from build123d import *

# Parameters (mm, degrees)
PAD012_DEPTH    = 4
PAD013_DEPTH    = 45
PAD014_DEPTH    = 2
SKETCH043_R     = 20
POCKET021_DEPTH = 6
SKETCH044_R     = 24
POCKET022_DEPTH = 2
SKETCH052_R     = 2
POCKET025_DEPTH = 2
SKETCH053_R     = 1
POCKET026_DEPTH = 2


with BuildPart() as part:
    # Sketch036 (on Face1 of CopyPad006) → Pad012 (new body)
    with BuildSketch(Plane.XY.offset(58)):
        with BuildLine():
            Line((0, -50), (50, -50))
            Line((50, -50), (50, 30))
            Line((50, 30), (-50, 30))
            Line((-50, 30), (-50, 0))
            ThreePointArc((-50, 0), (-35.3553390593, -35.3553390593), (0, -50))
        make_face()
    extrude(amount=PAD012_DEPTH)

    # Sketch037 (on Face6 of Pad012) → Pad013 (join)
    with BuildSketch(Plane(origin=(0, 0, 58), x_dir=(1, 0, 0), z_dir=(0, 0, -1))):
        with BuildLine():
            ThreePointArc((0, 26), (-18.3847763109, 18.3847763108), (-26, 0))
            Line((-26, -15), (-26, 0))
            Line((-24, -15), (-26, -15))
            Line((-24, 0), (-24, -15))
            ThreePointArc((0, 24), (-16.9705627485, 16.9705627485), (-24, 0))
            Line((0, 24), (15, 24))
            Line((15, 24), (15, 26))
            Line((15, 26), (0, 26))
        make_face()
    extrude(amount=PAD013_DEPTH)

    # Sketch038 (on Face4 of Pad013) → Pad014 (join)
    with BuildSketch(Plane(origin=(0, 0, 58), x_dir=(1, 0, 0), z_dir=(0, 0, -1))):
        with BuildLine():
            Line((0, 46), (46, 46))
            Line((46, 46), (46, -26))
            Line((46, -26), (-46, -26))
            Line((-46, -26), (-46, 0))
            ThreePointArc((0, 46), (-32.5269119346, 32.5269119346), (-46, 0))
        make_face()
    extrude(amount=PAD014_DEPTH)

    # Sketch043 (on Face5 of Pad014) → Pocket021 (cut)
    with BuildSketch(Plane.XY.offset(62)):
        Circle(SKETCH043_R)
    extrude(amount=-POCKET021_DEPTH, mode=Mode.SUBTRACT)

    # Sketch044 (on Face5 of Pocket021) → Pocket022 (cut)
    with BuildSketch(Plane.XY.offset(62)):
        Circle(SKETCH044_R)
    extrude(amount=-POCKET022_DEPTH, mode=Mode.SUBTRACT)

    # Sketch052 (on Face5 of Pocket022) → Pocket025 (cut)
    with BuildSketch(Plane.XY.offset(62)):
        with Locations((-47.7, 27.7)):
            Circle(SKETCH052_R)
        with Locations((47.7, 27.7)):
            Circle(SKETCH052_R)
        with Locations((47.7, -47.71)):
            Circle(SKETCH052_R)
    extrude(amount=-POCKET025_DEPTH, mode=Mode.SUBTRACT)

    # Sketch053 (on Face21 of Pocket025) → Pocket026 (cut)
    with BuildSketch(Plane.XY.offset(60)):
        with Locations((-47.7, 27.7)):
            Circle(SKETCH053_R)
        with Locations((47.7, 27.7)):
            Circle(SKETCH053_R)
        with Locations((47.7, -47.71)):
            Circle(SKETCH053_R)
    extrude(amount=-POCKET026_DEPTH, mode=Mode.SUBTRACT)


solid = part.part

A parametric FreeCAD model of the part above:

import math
import FreeCAD as App
import Part
import Sketcher

doc = App.newDocument("Part")
params = doc.addObject("Spreadsheet::Sheet", "Params")
for row, (alias, value) in enumerate([
    ("sketch1_radius", "50 mm"),
    ("sketch1_width", "50 mm"),
    ("sketch1_height", "80 mm"),
    ("pad1_length", "4 mm"),
    ("sketch2_radius", "26 mm"),
    ("sketch2_radius2", "24 mm"),
    ("sketch2_width", "15 mm"),
    ("pad2_length", "45 mm"),
    ("sketch3_radius", "46 mm"),
    ("sketch3_width", "46 mm"),
    ("sketch3_height", "26 mm"),
    ("pad3_length", "2 mm"),
    ("sketch4_diameter", "40 mm"),
    ("pocket1_length", "6 mm"),
    ("sketch5_diameter", "48 mm"),
    ("pocket2_length", "2 mm"),
    ("sketch6_diameter", "4 mm"),
    ("pocket3_length", "2 mm"),
    ("sketch7_diameter", "2 mm"),
    ("pocket4_length", "2 mm"),
], start=1):
    params.set(f"A{row}", alias)
    params.set(f"B{row}", "=" + value)
    params.setAlias(f"B{row}", alias)

body = doc.addObject("PartDesign::Body", "Body")

# Sketch on XY plane
sketch1 = doc.addObject("Sketcher::SketchObject", "Sketch")
body.addObject(sketch1)
sketch1.AttachmentSupport = (doc.XY_Plane, [""])
sketch1.MapMode = "FlatFace"
sketch1.AttachmentOffset = App.Placement(App.Vector(0, 0, 58), App.Rotation())
sketch1.addGeometry([
    Part.LineSegment(App.Vector(0, -50, 0), App.Vector(50, -50, 0)),  # 0
    Part.LineSegment(App.Vector(50, -50, 0), App.Vector(50, 30, 0)),  # 1
    Part.LineSegment(App.Vector(50, 30, 0), App.Vector(-50, 30, 0)),  # 2
    Part.LineSegment(App.Vector(-50, 30, 0), App.Vector(-50, 0, 0)),  # 3
    Part.ArcOfCircle(Part.Circle(App.Vector(0, 0, 0), App.Vector(0, 0, 1), 50), math.radians(180), math.radians(270)),  # 4
], False)
sketch1.addConstraint([
    Sketcher.Constraint("Coincident", 0, 2, 1, 1),
    Sketcher.Constraint("Coincident", 1, 2, 2, 1),
    Sketcher.Constraint("Coincident", 2, 2, 3, 1),
    Sketcher.Constraint("Tangent", 3, 2, 4, 1),
    Sketcher.Constraint("Tangent", 4, 2, 0, 1),
    Sketcher.Constraint("Horizontal", 0),
    Sketcher.Constraint("Vertical", 1),
    Sketcher.Constraint("Horizontal", 2),
    Sketcher.Constraint("Vertical", 3),
    Sketcher.Constraint("Coincident", 4, 3, -1, 1),
    Sketcher.Constraint("Radius", 4, 50.0),
    Sketcher.Constraint("DistanceX", 0, 1, 0, 2, 50.0),
    Sketcher.Constraint("DistanceY", 1, 1, 1, 2, 80.0),
])
sketch1.setExpression("Constraints[10]", "Params.sketch1_radius")
sketch1.setExpression("Constraints[11]", "Params.sketch1_width")
sketch1.setExpression("Constraints[12]", "Params.sketch1_height")
pad1 = doc.addObject("PartDesign::Pad", "Pad")
body.addObject(pad1)
pad1.Profile = sketch1
pad1.setExpression("Length", "Params.pad1_length")

# Sketch on XY plane
sketch2 = doc.addObject("Sketcher::SketchObject", "Sketch001")
body.addObject(sketch2)
sketch2.AttachmentSupport = (doc.XY_Plane, [""])
sketch2.MapMode = "FlatFace"
sketch2.AttachmentOffset = App.Placement(App.Vector(0, 0, 58), App.Rotation())
sketch2.addGeometry([
    Part.ArcOfCircle(Part.Circle(App.Vector(0, 0, 0), App.Vector(0, 0, 1), 26), math.radians(180), math.radians(270)),  # 0
    Part.LineSegment(App.Vector(-26, 0, 0), App.Vector(-26, 15, 0)),  # 1
    Part.LineSegment(App.Vector(-26, 15, 0), App.Vector(-24, 15, 0)),  # 2
    Part.LineSegment(App.Vector(-24, 15, 0), App.Vector(-24, 0, 0)),  # 3
    Part.ArcOfCircle(Part.Circle(App.Vector(0, 0, 0), App.Vector(0, 0, 1), 24), math.radians(180), math.radians(270)),  # 4
    Part.LineSegment(App.Vector(0, -24, 0), App.Vector(15, -24, 0)),  # 5
    Part.LineSegment(App.Vector(15, -24, 0), App.Vector(15, -26, 0)),  # 6
    Part.LineSegment(App.Vector(15, -26, 0), App.Vector(0, -26, 0)),  # 7
], False)
sketch2.addConstraint([
    Sketcher.Constraint("Tangent", 0, 1, 1, 1),
    Sketcher.Constraint("Coincident", 1, 2, 2, 1),
    Sketcher.Constraint("Coincident", 2, 2, 3, 1),
    Sketcher.Constraint("Tangent", 3, 2, 4, 1),
    Sketcher.Constraint("Tangent", 4, 2, 5, 1),
    Sketcher.Constraint("Coincident", 5, 2, 6, 1),
    Sketcher.Constraint("Coincident", 6, 2, 7, 1),
    Sketcher.Constraint("Tangent", 7, 2, 0, 2),
    Sketcher.Constraint("Vertical", 1),
    Sketcher.Constraint("Horizontal", 2),
    Sketcher.Constraint("Vertical", 3),
    Sketcher.Constraint("Horizontal", 5),
    Sketcher.Constraint("Vertical", 6),
    Sketcher.Constraint("Horizontal", 7),
    Sketcher.Constraint("Coincident", 0, 3, -1, 1),
    Sketcher.Constraint("Coincident", 4, 3, -1, 1),
    Sketcher.Constraint("Equal", 7, 1),
    Sketcher.Constraint("Radius", 0, 26.0),
    Sketcher.Constraint("Radius", 4, 24.0),
    Sketcher.Constraint("DistanceX", 5, 1, 5, 2, 15.0),
])
sketch2.setExpression("Constraints[17]", "Params.sketch2_radius")
sketch2.setExpression("Constraints[18]", "Params.sketch2_radius2")
sketch2.setExpression("Constraints[19]", "Params.sketch2_width")
pad2 = doc.addObject("PartDesign::Pad", "Pad001")
body.addObject(pad2)
pad2.Profile = sketch2
pad2.setExpression("Length", "Params.pad2_length")
pad2.Reversed = True

# Sketch on XY plane
sketch3 = doc.addObject("Sketcher::SketchObject", "Sketch002")
body.addObject(sketch3)
sketch3.AttachmentSupport = (doc.XY_Plane, [""])
sketch3.MapMode = "FlatFace"
sketch3.AttachmentOffset = App.Placement(App.Vector(0, 0, 58), App.Rotation())
sketch3.addGeometry([
    Part.LineSegment(App.Vector(46, -46, 0), App.Vector(0, -46, 0)),  # 0
    Part.ArcOfCircle(Part.Circle(App.Vector(0, 0, 0), App.Vector(0, 0, 1), 46), math.radians(180), math.radians(270)),  # 1
    Part.LineSegment(App.Vector(-46, 0, 0), App.Vector(-46, 26, 0)),  # 2
    Part.LineSegment(App.Vector(-46, 26, 0), App.Vector(46, 26, 0)),  # 3
    Part.LineSegment(App.Vector(46, 26, 0), App.Vector(46, -46, 0)),  # 4
], False)
sketch3.addConstraint([
    Sketcher.Constraint("Tangent", 0, 2, 1, 2),
    Sketcher.Constraint("Tangent", 1, 1, 2, 1),
    Sketcher.Constraint("Coincident", 2, 2, 3, 1),
    Sketcher.Constraint("Coincident", 3, 2, 4, 1),
    Sketcher.Constraint("Coincident", 4, 2, 0, 1),
    Sketcher.Constraint("Horizontal", 0),
    Sketcher.Constraint("Vertical", 2),
    Sketcher.Constraint("Horizontal", 3),
    Sketcher.Constraint("Vertical", 4),
    Sketcher.Constraint("Coincident", 1, 3, -1, 1),
    Sketcher.Constraint("Radius", 1, 46.0),
    Sketcher.Constraint("DistanceX", 0, 2, 0, 1, 46.0),
    Sketcher.Constraint("DistanceY", 2, 1, 2, 2, 26.0),
])
sketch3.setExpression("Constraints[10]", "Params.sketch3_radius")
sketch3.setExpression("Constraints[11]", "Params.sketch3_width")
sketch3.setExpression("Constraints[12]", "Params.sketch3_height")
pad3 = doc.addObject("PartDesign::Pad", "Pad002")
body.addObject(pad3)
pad3.Profile = sketch3
pad3.setExpression("Length", "Params.pad3_length")
pad3.Reversed = True

# Sketch on XY plane
sketch4 = doc.addObject("Sketcher::SketchObject", "Sketch003")
body.addObject(sketch4)
sketch4.AttachmentSupport = (doc.XY_Plane, [""])
sketch4.MapMode = "FlatFace"
sketch4.AttachmentOffset = App.Placement(App.Vector(0, 0, 62), App.Rotation())
sketch4.addGeometry(Part.Circle(App.Vector(0, 0, 0), App.Vector(0, 0, 1), 20), False)
sketch4.addConstraint([
    Sketcher.Constraint("Coincident", 0, 3, -1, 1),
    Sketcher.Constraint("Diameter", 0, 40.0),
])
sketch4.setExpression("Constraints[1]", "Params.sketch4_diameter")
pocket1 = doc.addObject("PartDesign::Pocket", "Pocket")
body.addObject(pocket1)
pocket1.Profile = sketch4
pocket1.setExpression("Length", "Params.pocket1_length")

# Sketch on XY plane
sketch5 = doc.addObject("Sketcher::SketchObject", "Sketch004")
body.addObject(sketch5)
sketch5.AttachmentSupport = (doc.XY_Plane, [""])
sketch5.MapMode = "FlatFace"
sketch5.AttachmentOffset = App.Placement(App.Vector(0, 0, 62), App.Rotation())
sketch5.addGeometry(Part.Circle(App.Vector(0, 0, 0), App.Vector(0, 0, 1), 24), False)
sketch5.addConstraint([
    Sketcher.Constraint("Coincident", 0, 3, -1, 1),
    Sketcher.Constraint("Diameter", 0, 48.0),
])
sketch5.setExpression("Constraints[1]", "Params.sketch5_diameter")
pocket2 = doc.addObject("PartDesign::Pocket", "Pocket001")
body.addObject(pocket2)
pocket2.Profile = sketch5
pocket2.setExpression("Length", "Params.pocket2_length")

# Sketch on XY plane
sketch6 = doc.addObject("Sketcher::SketchObject", "Sketch005")
body.addObject(sketch6)
sketch6.AttachmentSupport = (doc.XY_Plane, [""])
sketch6.MapMode = "FlatFace"
sketch6.AttachmentOffset = App.Placement(App.Vector(0, 0, 62), App.Rotation())
sketch6.addGeometry([
    Part.Circle(App.Vector(-47.7, 27.7, 0), App.Vector(0, 0, 1), 2),
    Part.Circle(App.Vector(47.7, 27.7, 0), App.Vector(0, 0, 1), 2),
    Part.Circle(App.Vector(47.7, -47.7, 0), App.Vector(0, 0, 1), 2),
], False)
sketch6.addConstraint([
    Sketcher.Constraint("Equal", 0, 1),
    Sketcher.Constraint("Equal", 1, 2),
    Sketcher.Constraint("Symmetric", 0, 3, 1, 3, -2),
    Sketcher.Constraint("Vertical", 1, 3, 2, 3),
    Sketcher.Constraint("Diameter", 0, 4.0),
    Sketcher.Constraint("DistanceX", 0, 3, -1, 1, 47.7),
    Sketcher.Constraint("DistanceY", -1, 1, 0, 3, 27.7),
    Sketcher.Constraint("DistanceY", 2, 3, -1, 1, 47.71),
])
sketch6.setExpression("Constraints[4]", "Params.sketch6_diameter")
pocket3 = doc.addObject("PartDesign::Pocket", "Pocket002")
body.addObject(pocket3)
pocket3.Profile = sketch6
pocket3.setExpression("Length", "Params.pocket3_length")

# Sketch on XY plane
sketch7 = doc.addObject("Sketcher::SketchObject", "Sketch006")
body.addObject(sketch7)
sketch7.AttachmentSupport = (doc.XY_Plane, [""])
sketch7.MapMode = "FlatFace"
sketch7.AttachmentOffset = App.Placement(App.Vector(0, 0, 60), App.Rotation())
sketch7.addGeometry([
    Part.Circle(App.Vector(-47.7, 27.7, 0), App.Vector(0, 0, 1), 1),
    Part.Circle(App.Vector(47.7, 27.7, 0), App.Vector(0, 0, 1), 1),
    Part.Circle(App.Vector(47.7, -47.7, 0), App.Vector(0, 0, 1), 1),
], False)
sketch7.addConstraint([
    Sketcher.Constraint("Equal", 0, 1),
    Sketcher.Constraint("Equal", 1, 2),
    Sketcher.Constraint("Symmetric", 0, 3, 1, 3, -2),
    Sketcher.Constraint("Vertical", 1, 3, 2, 3),
    Sketcher.Constraint("Diameter", 0, 2.0),
    Sketcher.Constraint("DistanceX", 0, 3, -1, 1, 47.7),
    Sketcher.Constraint("DistanceY", -1, 1, 0, 3, 27.7),
    Sketcher.Constraint("DistanceY", 2, 3, -1, 1, 47.71),
])
sketch7.setExpression("Constraints[4]", "Params.sketch7_diameter")
pocket4 = doc.addObject("PartDesign::Pocket", "Pocket003")
body.addObject(pocket4)
pocket4.Profile = sketch7
pocket4.setExpression("Length", "Params.pocket4_length")

doc.recompute()
